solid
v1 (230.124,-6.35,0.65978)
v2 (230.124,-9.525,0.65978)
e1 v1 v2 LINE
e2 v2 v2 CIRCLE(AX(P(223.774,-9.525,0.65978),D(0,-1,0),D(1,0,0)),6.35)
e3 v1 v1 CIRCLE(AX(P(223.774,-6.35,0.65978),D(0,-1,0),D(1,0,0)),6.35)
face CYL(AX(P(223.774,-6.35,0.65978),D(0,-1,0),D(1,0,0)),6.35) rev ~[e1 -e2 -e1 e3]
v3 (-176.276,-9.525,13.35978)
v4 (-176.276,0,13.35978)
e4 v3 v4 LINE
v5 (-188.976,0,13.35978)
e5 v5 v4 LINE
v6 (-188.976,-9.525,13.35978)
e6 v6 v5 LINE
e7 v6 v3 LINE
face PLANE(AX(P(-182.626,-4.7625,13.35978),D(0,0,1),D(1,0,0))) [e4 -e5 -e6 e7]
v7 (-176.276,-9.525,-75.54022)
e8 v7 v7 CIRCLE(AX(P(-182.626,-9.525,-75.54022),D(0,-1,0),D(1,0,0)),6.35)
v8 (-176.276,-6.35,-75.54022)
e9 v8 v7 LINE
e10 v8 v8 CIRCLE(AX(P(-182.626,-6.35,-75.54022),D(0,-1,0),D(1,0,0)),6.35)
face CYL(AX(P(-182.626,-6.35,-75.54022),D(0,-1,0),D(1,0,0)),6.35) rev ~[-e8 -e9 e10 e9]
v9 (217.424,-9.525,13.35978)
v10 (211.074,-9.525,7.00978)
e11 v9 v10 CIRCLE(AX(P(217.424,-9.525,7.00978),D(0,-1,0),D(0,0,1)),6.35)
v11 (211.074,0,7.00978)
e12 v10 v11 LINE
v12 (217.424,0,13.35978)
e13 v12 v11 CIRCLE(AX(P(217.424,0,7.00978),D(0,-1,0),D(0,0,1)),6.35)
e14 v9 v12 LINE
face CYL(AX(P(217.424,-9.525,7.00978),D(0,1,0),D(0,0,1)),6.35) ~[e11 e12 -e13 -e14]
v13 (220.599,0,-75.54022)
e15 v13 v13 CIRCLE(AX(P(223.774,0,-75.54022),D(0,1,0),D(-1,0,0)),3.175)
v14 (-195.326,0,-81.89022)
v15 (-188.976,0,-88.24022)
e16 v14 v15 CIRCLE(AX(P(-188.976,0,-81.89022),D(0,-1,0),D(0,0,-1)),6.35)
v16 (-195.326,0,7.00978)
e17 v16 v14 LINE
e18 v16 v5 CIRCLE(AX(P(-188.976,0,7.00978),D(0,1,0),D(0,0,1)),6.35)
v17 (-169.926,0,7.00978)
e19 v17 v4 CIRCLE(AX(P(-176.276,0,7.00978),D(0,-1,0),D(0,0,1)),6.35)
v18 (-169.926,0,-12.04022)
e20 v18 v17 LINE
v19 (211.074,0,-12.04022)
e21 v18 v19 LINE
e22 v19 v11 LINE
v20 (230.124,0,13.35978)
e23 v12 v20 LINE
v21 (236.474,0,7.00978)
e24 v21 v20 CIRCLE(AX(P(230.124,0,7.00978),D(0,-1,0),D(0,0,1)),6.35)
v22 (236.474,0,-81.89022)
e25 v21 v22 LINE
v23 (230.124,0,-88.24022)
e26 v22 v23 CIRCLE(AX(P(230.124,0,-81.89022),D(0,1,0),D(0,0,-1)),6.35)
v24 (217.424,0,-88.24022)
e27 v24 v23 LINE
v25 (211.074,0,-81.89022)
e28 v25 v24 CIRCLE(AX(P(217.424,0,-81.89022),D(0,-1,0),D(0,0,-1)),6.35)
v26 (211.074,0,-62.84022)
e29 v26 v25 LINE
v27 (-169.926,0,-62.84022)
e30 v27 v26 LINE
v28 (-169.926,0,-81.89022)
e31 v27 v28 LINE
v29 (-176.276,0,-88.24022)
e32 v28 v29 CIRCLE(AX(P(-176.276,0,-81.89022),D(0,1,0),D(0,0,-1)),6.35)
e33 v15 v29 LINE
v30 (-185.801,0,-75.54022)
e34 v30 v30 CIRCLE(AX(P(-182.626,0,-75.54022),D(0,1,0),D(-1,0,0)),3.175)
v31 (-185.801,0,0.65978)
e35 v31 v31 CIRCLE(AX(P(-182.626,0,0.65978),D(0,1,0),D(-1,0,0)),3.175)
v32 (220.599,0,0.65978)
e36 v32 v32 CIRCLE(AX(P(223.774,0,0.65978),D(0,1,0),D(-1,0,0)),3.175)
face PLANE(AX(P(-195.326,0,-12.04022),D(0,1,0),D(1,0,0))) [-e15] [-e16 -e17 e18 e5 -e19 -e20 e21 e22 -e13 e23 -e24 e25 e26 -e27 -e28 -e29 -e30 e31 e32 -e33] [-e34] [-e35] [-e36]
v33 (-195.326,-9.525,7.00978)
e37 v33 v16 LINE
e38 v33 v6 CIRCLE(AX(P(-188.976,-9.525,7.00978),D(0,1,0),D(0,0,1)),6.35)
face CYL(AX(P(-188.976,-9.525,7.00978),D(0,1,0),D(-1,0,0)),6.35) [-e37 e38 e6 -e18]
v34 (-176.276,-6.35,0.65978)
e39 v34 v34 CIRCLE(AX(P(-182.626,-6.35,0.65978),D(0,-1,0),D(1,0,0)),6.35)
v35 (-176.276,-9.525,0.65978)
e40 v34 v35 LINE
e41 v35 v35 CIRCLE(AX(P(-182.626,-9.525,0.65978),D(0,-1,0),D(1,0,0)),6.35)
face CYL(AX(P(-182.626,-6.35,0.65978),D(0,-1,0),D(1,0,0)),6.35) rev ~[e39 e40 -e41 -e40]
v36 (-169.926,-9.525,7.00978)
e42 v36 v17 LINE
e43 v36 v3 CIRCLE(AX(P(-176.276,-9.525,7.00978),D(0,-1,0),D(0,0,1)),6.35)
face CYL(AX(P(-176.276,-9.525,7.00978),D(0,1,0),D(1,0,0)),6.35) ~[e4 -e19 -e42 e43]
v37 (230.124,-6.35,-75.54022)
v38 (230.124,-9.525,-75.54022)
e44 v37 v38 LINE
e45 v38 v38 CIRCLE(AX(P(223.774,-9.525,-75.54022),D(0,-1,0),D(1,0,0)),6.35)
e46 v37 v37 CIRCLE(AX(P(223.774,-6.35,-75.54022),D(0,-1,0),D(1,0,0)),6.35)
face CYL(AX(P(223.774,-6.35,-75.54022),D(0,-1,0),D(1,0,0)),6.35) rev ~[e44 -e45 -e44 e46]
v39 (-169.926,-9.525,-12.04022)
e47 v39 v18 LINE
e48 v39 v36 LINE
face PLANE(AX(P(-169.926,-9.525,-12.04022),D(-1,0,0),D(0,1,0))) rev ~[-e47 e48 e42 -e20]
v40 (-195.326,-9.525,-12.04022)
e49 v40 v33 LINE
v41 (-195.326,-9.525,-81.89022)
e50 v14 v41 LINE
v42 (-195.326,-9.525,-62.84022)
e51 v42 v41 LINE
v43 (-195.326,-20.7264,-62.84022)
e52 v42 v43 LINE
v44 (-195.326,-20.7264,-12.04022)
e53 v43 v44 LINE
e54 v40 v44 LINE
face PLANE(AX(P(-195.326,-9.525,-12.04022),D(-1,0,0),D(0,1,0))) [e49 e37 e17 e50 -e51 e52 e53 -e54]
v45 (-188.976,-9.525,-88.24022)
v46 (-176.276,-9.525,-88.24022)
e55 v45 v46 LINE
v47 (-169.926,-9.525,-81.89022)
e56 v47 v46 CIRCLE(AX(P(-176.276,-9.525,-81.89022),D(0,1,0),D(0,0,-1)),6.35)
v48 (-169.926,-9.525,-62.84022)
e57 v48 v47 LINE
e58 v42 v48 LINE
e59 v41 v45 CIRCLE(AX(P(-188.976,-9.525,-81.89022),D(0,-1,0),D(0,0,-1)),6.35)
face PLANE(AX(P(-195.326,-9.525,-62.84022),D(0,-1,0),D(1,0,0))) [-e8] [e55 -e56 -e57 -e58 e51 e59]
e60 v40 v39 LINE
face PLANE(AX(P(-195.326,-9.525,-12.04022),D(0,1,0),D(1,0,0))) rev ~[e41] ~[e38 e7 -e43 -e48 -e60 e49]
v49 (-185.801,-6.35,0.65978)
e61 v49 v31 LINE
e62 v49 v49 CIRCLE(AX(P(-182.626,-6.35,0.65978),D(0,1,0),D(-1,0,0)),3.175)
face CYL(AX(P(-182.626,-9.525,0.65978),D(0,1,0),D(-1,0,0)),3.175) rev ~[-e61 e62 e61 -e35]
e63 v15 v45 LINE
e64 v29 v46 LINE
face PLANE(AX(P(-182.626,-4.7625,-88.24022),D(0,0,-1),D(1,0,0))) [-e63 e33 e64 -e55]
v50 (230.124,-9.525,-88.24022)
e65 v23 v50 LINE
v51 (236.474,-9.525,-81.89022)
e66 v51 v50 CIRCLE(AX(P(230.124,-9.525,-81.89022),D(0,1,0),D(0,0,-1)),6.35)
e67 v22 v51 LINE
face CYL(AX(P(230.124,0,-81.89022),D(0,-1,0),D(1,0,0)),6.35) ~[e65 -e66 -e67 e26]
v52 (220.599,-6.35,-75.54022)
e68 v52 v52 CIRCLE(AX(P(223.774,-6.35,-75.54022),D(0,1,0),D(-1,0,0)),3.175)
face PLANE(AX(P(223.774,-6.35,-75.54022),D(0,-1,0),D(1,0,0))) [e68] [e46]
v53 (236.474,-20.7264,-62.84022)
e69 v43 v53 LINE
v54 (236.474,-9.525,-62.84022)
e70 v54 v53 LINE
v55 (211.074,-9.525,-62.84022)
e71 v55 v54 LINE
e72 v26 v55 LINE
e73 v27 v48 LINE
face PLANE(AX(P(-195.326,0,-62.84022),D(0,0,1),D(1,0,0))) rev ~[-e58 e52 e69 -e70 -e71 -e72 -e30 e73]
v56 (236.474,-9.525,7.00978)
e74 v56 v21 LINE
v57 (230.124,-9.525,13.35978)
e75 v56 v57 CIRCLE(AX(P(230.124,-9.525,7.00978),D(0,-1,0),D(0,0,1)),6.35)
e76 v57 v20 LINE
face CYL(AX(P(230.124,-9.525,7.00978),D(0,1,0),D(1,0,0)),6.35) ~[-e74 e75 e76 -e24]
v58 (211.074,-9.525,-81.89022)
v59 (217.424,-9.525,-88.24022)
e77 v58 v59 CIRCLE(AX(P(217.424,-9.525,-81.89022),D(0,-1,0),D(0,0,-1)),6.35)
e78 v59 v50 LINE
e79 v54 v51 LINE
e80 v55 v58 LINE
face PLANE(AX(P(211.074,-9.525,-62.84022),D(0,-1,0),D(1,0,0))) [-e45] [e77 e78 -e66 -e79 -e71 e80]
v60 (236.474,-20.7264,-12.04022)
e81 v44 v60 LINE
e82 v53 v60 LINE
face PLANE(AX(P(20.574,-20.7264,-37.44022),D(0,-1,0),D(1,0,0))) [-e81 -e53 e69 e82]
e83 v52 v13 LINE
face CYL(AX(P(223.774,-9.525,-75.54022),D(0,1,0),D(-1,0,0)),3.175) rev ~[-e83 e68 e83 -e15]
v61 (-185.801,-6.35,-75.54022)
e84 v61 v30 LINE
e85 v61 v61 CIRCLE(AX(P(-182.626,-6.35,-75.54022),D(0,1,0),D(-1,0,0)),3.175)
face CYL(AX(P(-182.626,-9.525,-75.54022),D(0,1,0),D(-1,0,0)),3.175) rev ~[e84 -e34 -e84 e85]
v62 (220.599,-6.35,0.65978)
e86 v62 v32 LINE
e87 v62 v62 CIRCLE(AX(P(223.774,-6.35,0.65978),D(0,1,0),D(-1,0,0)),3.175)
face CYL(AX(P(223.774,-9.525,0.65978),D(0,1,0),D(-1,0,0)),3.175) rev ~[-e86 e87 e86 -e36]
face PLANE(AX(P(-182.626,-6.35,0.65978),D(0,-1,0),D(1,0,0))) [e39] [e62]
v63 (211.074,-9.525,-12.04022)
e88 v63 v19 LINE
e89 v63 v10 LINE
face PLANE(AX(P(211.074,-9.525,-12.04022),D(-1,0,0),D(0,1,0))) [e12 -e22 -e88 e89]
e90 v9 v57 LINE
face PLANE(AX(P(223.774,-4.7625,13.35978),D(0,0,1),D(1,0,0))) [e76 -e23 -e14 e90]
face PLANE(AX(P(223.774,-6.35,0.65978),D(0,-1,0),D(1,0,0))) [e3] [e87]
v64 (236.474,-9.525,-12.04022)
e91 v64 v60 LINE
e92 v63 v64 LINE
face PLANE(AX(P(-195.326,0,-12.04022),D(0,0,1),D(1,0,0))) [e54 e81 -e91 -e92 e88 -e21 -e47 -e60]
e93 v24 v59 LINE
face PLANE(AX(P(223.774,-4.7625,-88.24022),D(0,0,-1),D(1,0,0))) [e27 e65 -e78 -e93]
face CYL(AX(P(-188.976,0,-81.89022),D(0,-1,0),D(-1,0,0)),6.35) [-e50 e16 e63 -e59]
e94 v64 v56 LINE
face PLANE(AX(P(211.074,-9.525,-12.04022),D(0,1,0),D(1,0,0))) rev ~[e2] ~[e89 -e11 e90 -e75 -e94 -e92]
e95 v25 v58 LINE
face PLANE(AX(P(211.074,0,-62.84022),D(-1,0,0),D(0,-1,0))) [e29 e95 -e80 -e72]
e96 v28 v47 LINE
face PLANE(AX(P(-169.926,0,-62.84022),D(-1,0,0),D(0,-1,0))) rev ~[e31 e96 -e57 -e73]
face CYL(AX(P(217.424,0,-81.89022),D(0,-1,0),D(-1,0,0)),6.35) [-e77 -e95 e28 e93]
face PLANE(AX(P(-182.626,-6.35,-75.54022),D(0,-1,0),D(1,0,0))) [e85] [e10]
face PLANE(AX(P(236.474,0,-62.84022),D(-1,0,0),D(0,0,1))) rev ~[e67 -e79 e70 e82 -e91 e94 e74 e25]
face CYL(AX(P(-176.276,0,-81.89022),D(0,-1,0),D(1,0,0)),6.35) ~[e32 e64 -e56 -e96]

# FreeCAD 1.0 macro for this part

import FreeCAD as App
import Part
import Sketcher

V = App.Vector
Q = App.Units.Quantity


def edges_at(feature, points):
    """Names of the edges that pass closest to the given points."""
    edges = feature.Shape.Edges
    near = lambda p: min(range(len(edges)), key=lambda i: edges[i].distToShape(Part.Vertex(*p))[0])
    return sorted({f"Edge{near(p) + 1}" for p in points})

doc = App.newDocument("Part")
body = doc.addObject("PartDesign::Body", "Body")

sketch1 = doc.addObject("Sketcher::SketchObject", "Sketch")
body.addObject(sketch1)
sketch1.AttachmentSupport = (doc.XZ_Plane, [""])
sketch1.MapMode = "FlatFace"
sketch1.addGeometry([
    Part.LineSegment(V(-195, -12, 0), V(-195, -63, 0)),
    Part.LineSegment(V(-195, -63, 0), V(236, -63, 0)),
    Part.LineSegment(V(236, -63, 0), V(236, -12, 0)),
    Part.LineSegment(V(236, -12, 0), V(-195, -12, 0)),
], False)
sketch1.addConstraint([
    Sketcher.Constraint("Coincident", 0, 2, 1, 1),
    Sketcher.Constraint("Coincident", 1, 2, 2, 1),
    Sketcher.Constraint("Coincident", 2, 2, 3, 1),
    Sketcher.Constraint("Coincident", 3, 2, 0, 1),
    Sketcher.Constraint("Vertical", 0),
    Sketcher.Constraint("Horizontal", 1),
    Sketcher.Constraint("Vertical", 2),
    Sketcher.Constraint("Horizontal", 3),
    Sketcher.Constraint("DistanceX", 1, 1, 1, 2, Q("17 in")),
    Sketcher.Constraint("DistanceY", 0, 2, 0, 1, Q("2 in")),
    Sketcher.Constraint("DistanceX", 0, 2, -1, 1, Q("7.69 in")),
    Sketcher.Constraint("DistanceY", 0, 2, -1, 1, Q("62.84022 mm")),
])
pad1 = doc.addObject("PartDesign::Pad", "Pad")
body.addObject(pad1)
pad1.Profile = sketch1
pad1.Length = Q("0.816 in")

sketch2 = doc.addObject("Sketcher::SketchObject", "Sketch001")
body.addObject(sketch2)
sketch2.AttachmentSupport = (doc.XY_Plane, [""])
sketch2.MapMode = "FlatFace"
sketch2.AttachmentOffset = App.Placement(V(0, 0, -62.84022), App.Rotation())
sketch2.addGeometry([
    Part.LineSegment(V(-195, -10, 0), V(-195, 0, 0)),
    Part.LineSegment(V(-195, 0, 0), V(-170, 0, 0)),
    Part.LineSegment(V(-170, 0, 0), V(-170, -10, 0)),
    Part.LineSegment(V(-170, -10, 0), V(-195, -10, 0)),
    Part.LineSegment(V(211, -10, 0), V(211, 0, 0)),
    Part.LineSegment(V(211, 0, 0), V(236, 0, 0)),
    Part.LineSegment(V(236, 0, 0), V(236, -10, 0)),
    Part.LineSegment(V(236, -10, 0), V(211, -10, 0)),
], False)
sketch2.addConstraint([
    Sketcher.Constraint("Coincident", 0, 2, 1, 1),
    Sketcher.Constraint("Coincident", 1, 2, 2, 1),
    Sketcher.Constraint("Coincident", 2, 2, 3, 1),
    Sketcher.Constraint("Coincident", 3, 2, 0, 1),
    Sketcher.Constraint("Coincident", 4, 2, 5, 1),
    Sketcher.Constraint("Coincident", 5, 2, 6, 1),
    Sketcher.Constraint("Coincident", 6, 2, 7, 1),
    Sketcher.Constraint("Coincident", 7, 2, 4, 1),
    Sketcher.Constraint("Vertical", 0),
    Sketcher.Constraint("Horizontal", 1),
    Sketcher.Constraint("Vertical", 2),
    Sketcher.Constraint("Horizontal", 3),
    Sketcher.Constraint("Vertical", 4),
    Sketcher.Constraint("Horizontal", 5),
    Sketcher.Constraint("Vertical", 6),
    Sketcher.Constraint("Horizontal", 7),
    Sketcher.Constraint("PointOnObject", 0, 2, -1),
    Sketcher.Constraint("PointOnObject", 4, 2, -1),
    Sketcher.Constraint("Horizontal", 3, 2, 6, 2),
    Sketcher.Constraint("Equal", 3, 5),
    Sketcher.Constraint("DistanceX", 1, 1, 1, 2, Q("1 in")),
    Sketcher.Constraint("DistanceX", 1, 2, 4, 2, Q("15 in")),
    Sketcher.Constraint("DistanceY", 0, 1, 0, 2, Q("0.375 in")),
    Sketcher.Constraint("DistanceX", 0, 2, -1, 1, Q("7.69 in")),
])
pad2 = doc.addObject("PartDesign::Pad", "Pad001")
body.addObject(pad2)
pad2.Profile = sketch2
pad2.Length = Q("1 in")
pad2.Reversed = True

sketch3 = doc.addObject("Sketcher::SketchObject", "Sketch002")
body.addObject(sketch3)
sketch3.AttachmentSupport = (doc.XY_Plane, [""])
sketch3.MapMode = "FlatFace"
sketch3.AttachmentOffset = App.Placement(V(0, 0, -12.04022), App.Rotation())
sketch3.addGeometry([
    Part.LineSegment(V(-195, 0, 0), V(-195, -10, 0)),
    Part.LineSegment(V(-195, -10, 0), V(-170, -10, 0)),
    Part.LineSegment(V(-170, -10, 0), V(-170, 0, 0)),
    Part.LineSegment(V(-170, 0, 0), V(-195, 0, 0)),
    Part.LineSegment(V(211, 0, 0), V(211, -10, 0)),
    Part.LineSegment(V(211, -10, 0), V(236, -10, 0)),
    Part.LineSegment(V(236, -10, 0), V(236, 0, 0)),
    Part.LineSegment(V(236, 0, 0), V(211, 0, 0)),
], False)
sketch3.addConstraint([
    Sketcher.Constraint("Coincident", 0, 2, 1, 1),
    Sketcher.Constraint("Coincident", 1, 2, 2, 1),
    Sketcher.Constraint("Coincident", 2, 2, 3, 1),
    Sketcher.Constraint("Coincident", 3, 2, 0, 1),
    Sketcher.Constraint("Coincident", 4, 2, 5, 1),
    Sketcher.Constraint("Coincident", 5, 2, 6, 1),
    Sketcher.Constraint("Coincident", 6, 2, 7, 1),
    Sketcher.Constraint("Coincident", 7, 2, 4, 1),
    Sketcher.Constraint("Vertical", 0),
    Sketcher.Constraint("Horizontal", 1),
    Sketcher.Constraint("Vertical", 2),
    Sketcher.Constraint("Horizontal", 3),
    Sketcher.Constraint("Vertical", 4),
    Sketcher.Constraint("Horizontal", 5),
    Sketcher.Constraint("Vertical", 6),
    Sketcher.Constraint("Horizontal", 7),
    Sketcher.Constraint("PointOnObject", 2, 2, -1),
    Sketcher.Constraint("PointOnObject", 6, 2, -1),
    Sketcher.Constraint("Horizontal", 1, 2, 4, 2),
    Sketcher.Constraint("Equal", 3, 5),
    Sketcher.Constraint("DistanceX", 1, 1, 1, 2, Q("1 in")),
    Sketcher.Constraint("DistanceX", 1, 2, 4, 2, Q("15 in")),
    Sketcher.Constraint("DistanceY", 0, 2, 0, 1, Q("0.375 in")),
    Sketcher.Constraint("DistanceX", 0, 2, -1, 1, Q("7.69 in")),
])
pad3 = doc.addObject("PartDesign::Pad", "Pad002")
body.addObject(pad3)
pad3.Profile = sketch3
pad3.Length = Q("1 in")
doc.recompute()

fillet = doc.addObject("PartDesign::Fillet", "Fillet")
body.addObject(fillet)
fillet.Base = (pad3, edges_at(pad3, [
    (236.474, -4.763, -88.24),
    (211.074, -4.763, -88.24),
    (236.474, -4.763, 13.36),
    (211.074, -4.763, 13.36),
    (-169.926, -4.763, 13.36),
    (-195.326, -4.763, 13.36),
    (-195.326, -4.763, -88.24),
    (-169.926, -4.763, -88.24),
]))
fillet.Radius = Q("0.25 in")

sketch4 = doc.addObject("Sketcher::SketchObject", "Sketch003")
body.addObject(sketch4)
sketch4.AttachmentSupport = (doc.XZ_Plane, [""])
sketch4.MapMode = "FlatFace"
sketch4.AttachmentOffset = App.Placement(V(0, 0, 0.375 * 25.4), App.Rotation())
sketch4.addGeometry([
    Part.Circle(V(-182.6, 0.7, 0), V(0, 0, 1), 3.2),
    Part.Circle(V(-182.6, -75.5, 0), V(0, 0, 1), 3.2),
    Part.Circle(V(223.8, 0.7, 0), V(0, 0, 1), 3.2),
    Part.Circle(V(223.8, -75.5, 0), V(0, 0, 1), 3.2),
], False)
sketch4.addConstraint([
    Sketcher.Constraint("Equal", 0, 1),
    Sketcher.Constraint("Equal", 1, 2),
    Sketcher.Constraint("Equal", 2, 3),
    Sketcher.Constraint("Horizontal", 0, 3, 2, 3),
    Sketcher.Constraint("Horizontal", 1, 3, 3, 3),
    Sketcher.Constraint("Vertical", 0, 3, 1, 3),
    Sketcher.Constraint("Vertical", 2, 3, 3, 3),
    Sketcher.Constraint("Diameter", 0, Q("0.25 in")),
    Sketcher.Constraint("DistanceY", 1, 3, 0, 3, Q("3 in")),
    Sketcher.Constraint("DistanceX", 0, 3, 2, 3, Q("16 in")),
    Sketcher.Constraint("DistanceX", 0, 3, -1, 1, Q("7.19 in")),
    Sketcher.Constraint("DistanceY", -1, 1, 0, 3, Q("0.65978 mm")),
])
doc.recompute()
hole = doc.addObject("PartDesign::Hole", "Hole")
body.addObject(hole)
hole.Profile = sketch4
hole.ThreadType = "None"
hole.Diameter = Q("0.25 in")
hole.DepthType = "ThroughAll"
hole.HoleCutType = "Counterbore"
hole.HoleCutDiameter = Q("0.5 in")
hole.HoleCutDepth = Q("0.125 in")

doc.recompute()
